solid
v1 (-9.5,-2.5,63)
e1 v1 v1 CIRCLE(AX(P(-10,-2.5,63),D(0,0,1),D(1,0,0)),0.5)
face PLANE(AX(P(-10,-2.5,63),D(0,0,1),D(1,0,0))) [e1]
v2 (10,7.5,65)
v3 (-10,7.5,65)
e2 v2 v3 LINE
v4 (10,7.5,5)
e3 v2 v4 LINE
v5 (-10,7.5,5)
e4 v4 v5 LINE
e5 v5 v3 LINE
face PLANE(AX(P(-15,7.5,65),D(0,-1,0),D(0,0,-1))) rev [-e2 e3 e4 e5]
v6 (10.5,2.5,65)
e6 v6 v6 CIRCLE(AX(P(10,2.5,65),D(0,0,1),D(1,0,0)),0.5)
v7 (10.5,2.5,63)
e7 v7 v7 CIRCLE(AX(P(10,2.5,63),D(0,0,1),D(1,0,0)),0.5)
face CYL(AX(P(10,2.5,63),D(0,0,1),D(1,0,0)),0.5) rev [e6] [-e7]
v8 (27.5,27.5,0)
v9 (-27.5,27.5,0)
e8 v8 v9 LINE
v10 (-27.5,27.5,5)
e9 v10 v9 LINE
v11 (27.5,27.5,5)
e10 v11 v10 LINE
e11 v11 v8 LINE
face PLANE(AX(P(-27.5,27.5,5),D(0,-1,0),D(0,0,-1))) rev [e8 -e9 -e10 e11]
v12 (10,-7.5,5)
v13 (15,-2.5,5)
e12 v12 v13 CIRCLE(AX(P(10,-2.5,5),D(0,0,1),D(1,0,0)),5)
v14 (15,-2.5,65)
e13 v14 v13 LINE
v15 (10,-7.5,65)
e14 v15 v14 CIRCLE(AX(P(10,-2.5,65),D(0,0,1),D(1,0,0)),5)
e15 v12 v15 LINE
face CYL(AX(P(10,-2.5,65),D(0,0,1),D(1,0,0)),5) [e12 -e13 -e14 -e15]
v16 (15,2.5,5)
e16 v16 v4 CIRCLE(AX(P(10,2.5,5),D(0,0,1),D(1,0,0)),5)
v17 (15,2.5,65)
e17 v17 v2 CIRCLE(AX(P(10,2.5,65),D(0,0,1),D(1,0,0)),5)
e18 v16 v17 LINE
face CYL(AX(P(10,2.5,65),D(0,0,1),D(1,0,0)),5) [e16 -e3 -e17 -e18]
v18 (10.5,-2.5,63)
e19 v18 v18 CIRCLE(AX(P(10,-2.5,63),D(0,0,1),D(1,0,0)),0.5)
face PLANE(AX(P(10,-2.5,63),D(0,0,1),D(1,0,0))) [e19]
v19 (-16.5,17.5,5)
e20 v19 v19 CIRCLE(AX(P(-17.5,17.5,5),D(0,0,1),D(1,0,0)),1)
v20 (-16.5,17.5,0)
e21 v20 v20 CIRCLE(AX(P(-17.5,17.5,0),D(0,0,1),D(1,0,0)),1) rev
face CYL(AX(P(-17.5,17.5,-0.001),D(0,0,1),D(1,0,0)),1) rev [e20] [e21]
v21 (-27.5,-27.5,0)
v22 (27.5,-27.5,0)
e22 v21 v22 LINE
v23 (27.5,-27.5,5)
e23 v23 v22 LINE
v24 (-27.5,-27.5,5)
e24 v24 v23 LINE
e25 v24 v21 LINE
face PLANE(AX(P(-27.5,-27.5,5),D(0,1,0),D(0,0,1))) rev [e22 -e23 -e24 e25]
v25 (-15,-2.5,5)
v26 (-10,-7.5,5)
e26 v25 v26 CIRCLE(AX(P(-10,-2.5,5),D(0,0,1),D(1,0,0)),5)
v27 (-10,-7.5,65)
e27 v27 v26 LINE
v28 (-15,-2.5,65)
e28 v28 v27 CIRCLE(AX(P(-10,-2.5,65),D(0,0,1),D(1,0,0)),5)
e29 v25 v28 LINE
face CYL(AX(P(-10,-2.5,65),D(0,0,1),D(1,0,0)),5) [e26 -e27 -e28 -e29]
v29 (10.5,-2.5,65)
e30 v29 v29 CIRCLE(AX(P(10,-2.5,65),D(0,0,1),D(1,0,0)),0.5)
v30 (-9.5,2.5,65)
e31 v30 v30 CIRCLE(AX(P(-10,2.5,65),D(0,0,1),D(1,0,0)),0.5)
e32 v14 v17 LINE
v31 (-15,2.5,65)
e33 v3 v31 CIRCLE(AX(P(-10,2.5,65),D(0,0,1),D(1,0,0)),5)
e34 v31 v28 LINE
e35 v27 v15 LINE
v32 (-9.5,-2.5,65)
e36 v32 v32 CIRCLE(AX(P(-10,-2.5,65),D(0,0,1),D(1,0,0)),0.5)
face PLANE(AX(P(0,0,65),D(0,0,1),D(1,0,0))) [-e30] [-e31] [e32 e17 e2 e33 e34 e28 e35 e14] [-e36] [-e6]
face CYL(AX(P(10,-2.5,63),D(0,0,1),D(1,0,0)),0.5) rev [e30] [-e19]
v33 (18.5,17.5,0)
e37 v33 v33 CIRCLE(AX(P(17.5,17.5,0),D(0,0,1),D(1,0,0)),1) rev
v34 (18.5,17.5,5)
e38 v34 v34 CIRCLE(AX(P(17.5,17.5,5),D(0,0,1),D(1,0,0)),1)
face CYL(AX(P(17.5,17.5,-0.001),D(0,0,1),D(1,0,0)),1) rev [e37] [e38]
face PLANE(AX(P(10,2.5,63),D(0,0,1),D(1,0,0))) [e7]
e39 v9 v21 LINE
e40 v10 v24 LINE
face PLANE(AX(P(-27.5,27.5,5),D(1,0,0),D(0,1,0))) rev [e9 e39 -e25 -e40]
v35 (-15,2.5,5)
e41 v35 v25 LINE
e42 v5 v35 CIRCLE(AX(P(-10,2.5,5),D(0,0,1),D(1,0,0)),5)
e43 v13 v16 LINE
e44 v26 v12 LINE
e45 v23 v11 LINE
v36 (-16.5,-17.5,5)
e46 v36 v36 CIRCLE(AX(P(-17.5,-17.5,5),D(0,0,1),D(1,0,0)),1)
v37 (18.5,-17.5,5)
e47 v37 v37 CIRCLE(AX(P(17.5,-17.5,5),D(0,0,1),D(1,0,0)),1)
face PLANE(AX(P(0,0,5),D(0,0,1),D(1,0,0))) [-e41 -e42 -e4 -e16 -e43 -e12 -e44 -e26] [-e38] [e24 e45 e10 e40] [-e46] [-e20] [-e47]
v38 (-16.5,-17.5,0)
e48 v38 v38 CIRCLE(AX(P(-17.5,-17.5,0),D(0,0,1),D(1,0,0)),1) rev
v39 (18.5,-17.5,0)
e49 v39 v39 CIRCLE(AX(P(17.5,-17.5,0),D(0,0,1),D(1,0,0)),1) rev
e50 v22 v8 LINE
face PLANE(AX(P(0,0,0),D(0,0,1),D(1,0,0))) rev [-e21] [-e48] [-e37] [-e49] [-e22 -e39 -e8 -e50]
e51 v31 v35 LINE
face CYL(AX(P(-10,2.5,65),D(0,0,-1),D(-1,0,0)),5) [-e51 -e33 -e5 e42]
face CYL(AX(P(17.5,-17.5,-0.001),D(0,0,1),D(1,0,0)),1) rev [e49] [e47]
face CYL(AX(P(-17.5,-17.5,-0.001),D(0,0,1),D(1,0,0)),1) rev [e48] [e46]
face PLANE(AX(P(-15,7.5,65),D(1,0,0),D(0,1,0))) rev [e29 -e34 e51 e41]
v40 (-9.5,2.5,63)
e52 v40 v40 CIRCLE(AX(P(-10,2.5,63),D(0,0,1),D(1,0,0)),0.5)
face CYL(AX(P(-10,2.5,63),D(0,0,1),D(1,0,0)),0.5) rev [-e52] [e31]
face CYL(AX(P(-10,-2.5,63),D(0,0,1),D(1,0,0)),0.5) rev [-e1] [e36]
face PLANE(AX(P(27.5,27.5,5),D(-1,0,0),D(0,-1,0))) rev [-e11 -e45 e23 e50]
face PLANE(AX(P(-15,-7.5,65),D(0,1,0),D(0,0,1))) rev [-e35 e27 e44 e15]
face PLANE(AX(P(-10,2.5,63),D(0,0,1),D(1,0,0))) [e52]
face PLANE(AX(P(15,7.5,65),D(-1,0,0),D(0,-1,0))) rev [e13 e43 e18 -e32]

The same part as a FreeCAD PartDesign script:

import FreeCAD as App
import Part
import Sketcher

V = App.Vector
Q = App.Units.Quantity


def edges_at(feature, points):
    """Names of the edges that pass closest to the given points."""
    edges = feature.Shape.Edges
    near = lambda p: min(range(len(edges)), key=lambda i: edges[i].distToShape(Part.Vertex(*p))[0])
    return sorted({f"Edge{near(p) + 1}" for p in points})


def add_polygon(sketch, points):
    """Adds a closed chain of lines whose ends are joined by coincident constraints."""
    first, n = sketch.GeometryCount, len(points)
    for a, b in zip(points, points[1:] + points[:1]):
        sketch.addGeometry(Part.LineSegment(App.Vector(*a, 0), App.Vector(*b, 0)), False)
    for i in range(n):
        sketch.addConstraint(Sketcher.Constraint("Coincident", first + i, 2, first + (i + 1) % n, 1))

doc = App.newDocument("Part")
body = doc.addObject("PartDesign::Body", "Body")

# Sketch on XY plane
sketch1 = doc.addObject("Sketcher::SketchObject", "Sketch")
body.addObject(sketch1)
sketch1.AttachmentSupport = (doc.XY_Plane, [""])
sketch1.MapMode = "FlatFace"
add_polygon(sketch1, [(-28, 28), (-28, -28), (28, -28), (28, 28)])  # lines 0-3
sketch1.addConstraint([
    Sketcher.Constraint("Vertical", 0),
    Sketcher.Constraint("Horizontal", 1),
    Sketcher.Constraint("Vertical", 2),
    Sketcher.Constraint("Horizontal", 3),
    Sketcher.Constraint("Symmetric", 0, 2, 2, 2, -1, 1),
    Sketcher.Constraint("Equal", 3, 0),
    Sketcher.Constraint("DistanceX", 1, 1, 1, 2, Q("55 mm")),
])
pad1 = doc.addObject("PartDesign::Pad", "Pad")
body.addObject(pad1)
pad1.Profile = sketch1
pad1.Length = 5

# Sketch on XY plane
sketch2 = doc.addObject("Sketcher::SketchObject", "Sketch001")
body.addObject(sketch2)
sketch2.AttachmentSupport = (doc.XY_Plane, [""])
sketch2.MapMode = "FlatFace"
sketch2.AttachmentOffset = App.Placement(V(0, 0, 5), App.Rotation())
add_polygon(sketch2, [(-15, 8), (-15, -8), (15, -8), (15, 8)])  # lines 0-3
sketch2.addConstraint([
    Sketcher.Constraint("Vertical", 0),
    Sketcher.Constraint("Horizontal", 1),
    Sketcher.Constraint("Vertical", 2),
    Sketcher.Constraint("Horizontal", 3),
    Sketcher.Constraint("Symmetric", 0, 2, 2, 2, -1, 1),
    Sketcher.Constraint("DistanceX", 1, 1, 1, 2, Q("30 mm")),
    Sketcher.Constraint("DistanceY", 0, 2, 0, 1, Q("15 mm")),
])
pad2 = doc.addObject("PartDesign::Pad", "Pad001")
body.addObject(pad2)
pad2.Profile = sketch2
pad2.Length = 60
doc.recompute()

fillet = doc.addObject("PartDesign::Fillet", "Fillet")
body.addObject(fillet)
fillet.Base = (pad2, edges_at(pad2, [(-15, -7.5, 35)]))
fillet.Radius = 5
doc.recompute()

fillet2 = doc.addObject("PartDesign::Fillet", "Fillet001")
body.addObject(fillet2)
fillet2.Base = (fillet, edges_at(fillet, [(15, 7.5, 35)]))
fillet2.Radius = 5
doc.recompute()

fillet3 = doc.addObject("PartDesign::Fillet", "Fillet002")
body.addObject(fillet3)
fillet3.Base = (fillet2, edges_at(fillet2, [(15, -7.5, 35)]))
fillet3.Radius = 5
doc.recompute()

fillet4 = doc.addObject("PartDesign::Fillet", "Fillet003")
body.addObject(fillet4)
fillet4.Base = (fillet3, edges_at(fillet3, [(-15, 7.5, 35)]))
fillet4.Radius = 5

# Sketch on XY plane
sketch3 = doc.addObject("Sketcher::SketchObject", "Sketch002")
body.addObject(sketch3)
sketch3.AttachmentSupport = (doc.XY_Plane, [""])
sketch3.MapMode = "FlatFace"
sketch3.AttachmentOffset = App.Placement(V(0, 0, 5), App.Rotation())
sketch3.addGeometry(Part.Circle(V(17.5, 17.5, 0), V(0, 0, 1), 1), False)
sketch3.addConstraint([
    Sketcher.Constraint("Diameter", 0, Q("2 mm")),
    Sketcher.Constraint("DistanceX", -1, 1, 0, 3, Q("17.5 mm")),
    Sketcher.Constraint("DistanceY", -1, 1, 0, 3, Q("17.5 mm")),
])
pocket1 = doc.addObject("PartDesign::Pocket", "Pocket")
body.addObject(pocket1)
pocket1.Profile = sketch3
pocket1.Type = "UpToFirst"

# Sketch on XY plane
sketch4 = doc.addObject("Sketcher::SketchObject", "Sketch003")
body.addObject(sketch4)
sketch4.AttachmentSupport = (doc.XY_Plane, [""])
sketch4.MapMode = "FlatFace"
sketch4.AttachmentOffset = App.Placement(V(0, 0, 5), App.Rotation())
sketch4.addGeometry(Part.Circle(V(-17.5, 17.5, 0), V(0, 0, 1), 1), False)
sketch4.addConstraint([
    Sketcher.Constraint("Diameter", 0, Q("2 mm")),
    Sketcher.Constraint("DistanceX", 0, 3, -1, 1, Q("17.5 mm")),
    Sketcher.Constraint("DistanceY", -1, 1, 0, 3, Q("17.5 mm")),
])
pocket2 = doc.addObject("PartDesign::Pocket", "Pocket001")
body.addObject(pocket2)
pocket2.Profile = sketch4
pocket2.Type = "UpToFirst"

# Sketch on XY plane
sketch5 = doc.addObject("Sketcher::SketchObject", "Sketch004")
body.addObject(sketch5)
sketch5.AttachmentSupport = (doc.XY_Plane, [""])
sketch5.MapMode = "FlatFace"
sketch5.AttachmentOffset = App.Placement(V(0, 0, 5), App.Rotation())
sketch5.addGeometry(Part.Circle(V(-17.5, -17.5, 0), V(0, 0, 1), 1), False)
sketch5.addConstraint([
    Sketcher.Constraint("Diameter", 0, Q("2 mm")),
    Sketcher.Constraint("DistanceX", 0, 3, -1, 1, Q("17.5 mm")),
    Sketcher.Constraint("DistanceY", 0, 3, -1, 1, Q("17.5 mm")),
])
pocket3 = doc.addObject("PartDesign::Pocket", "Pocket002")
body.addObject(pocket3)
pocket3.Profile = sketch5
pocket3.Type = "UpToFirst"

# Sketch on XY plane
sketch6 = doc.addObject("Sketcher::SketchObject", "Sketch005")
body.addObject(sketch6)
sketch6.AttachmentSupport = (doc.XY_Plane, [""])
sketch6.MapMode = "FlatFace"
sketch6.AttachmentOffset = App.Placement(V(0, 0, 5), App.Rotation())
sketch6.addGeometry(Part.Circle(V(17.5, -17.5, 0), V(0, 0, 1), 1), False)
sketch6.addConstraint([
    Sketcher.Constraint("Diameter", 0, Q("2 mm")),
    Sketcher.Constraint("DistanceX", -1, 1, 0, 3, Q("17.5 mm")),
    Sketcher.Constraint("DistanceY", 0, 3, -1, 1, Q("17.5 mm")),
])
pocket4 = doc.addObject("PartDesign::Pocket", "Pocket003")
body.addObject(pocket4)
pocket4.Profile = sketch6
pocket4.Type = "UpToFirst"

# Sketch on XY plane
sketch7 = doc.addObject("Sketcher::SketchObject", "Sketch006")
body.addObject(sketch7)
sketch7.AttachmentSupport = (doc.XY_Plane, [""])
sketch7.MapMode = "FlatFace"
sketch7.AttachmentOffset = App.Placement(V(0, 0, 65), App.Rotation())
sketch7.addGeometry([
    Part.Circle(V(10, -2.5, 0), V(0, 0, 1), 0.5),
    Part.Circle(V(10, 2.5, 0), V(0, 0, 1), 0.5),
    Part.Circle(V(-10, 2.5, 0), V(0, 0, 1), 0.5),
    Part.Circle(V(-10, -2.5, 0), V(0, 0, 1), 0.5),
], False)
sketch7.addConstraint([
    Sketcher.Constraint("Equal", 0, 1),
    Sketcher.Constraint("Equal", 1, 2),
    Sketcher.Constraint("Equal", 2, 3),
    Sketcher.Constraint("Symmetric", 0, 3, 2, 3, -1, 1),
    Sketcher.Constraint("Symmetric", 1, 3, 3, 3, -1, 1),
    Sketcher.Constraint("Symmetric", 1, 3, 2, 3, -2),
    Sketcher.Constraint("Diameter", 0, Q("1 mm")),
    Sketcher.Constraint("DistanceX", -1, 1, 0, 3, Q("10 mm")),
    Sketcher.Constraint("DistanceY", 0, 3, 1, 3, Q("5 mm")),
])
pocket5 = doc.addObject("PartDesign::Pocket", "Pocket004")
body.addObject(pocket5)
pocket5.Profile = sketch7
pocket5.Length = 2

doc.recompute()
